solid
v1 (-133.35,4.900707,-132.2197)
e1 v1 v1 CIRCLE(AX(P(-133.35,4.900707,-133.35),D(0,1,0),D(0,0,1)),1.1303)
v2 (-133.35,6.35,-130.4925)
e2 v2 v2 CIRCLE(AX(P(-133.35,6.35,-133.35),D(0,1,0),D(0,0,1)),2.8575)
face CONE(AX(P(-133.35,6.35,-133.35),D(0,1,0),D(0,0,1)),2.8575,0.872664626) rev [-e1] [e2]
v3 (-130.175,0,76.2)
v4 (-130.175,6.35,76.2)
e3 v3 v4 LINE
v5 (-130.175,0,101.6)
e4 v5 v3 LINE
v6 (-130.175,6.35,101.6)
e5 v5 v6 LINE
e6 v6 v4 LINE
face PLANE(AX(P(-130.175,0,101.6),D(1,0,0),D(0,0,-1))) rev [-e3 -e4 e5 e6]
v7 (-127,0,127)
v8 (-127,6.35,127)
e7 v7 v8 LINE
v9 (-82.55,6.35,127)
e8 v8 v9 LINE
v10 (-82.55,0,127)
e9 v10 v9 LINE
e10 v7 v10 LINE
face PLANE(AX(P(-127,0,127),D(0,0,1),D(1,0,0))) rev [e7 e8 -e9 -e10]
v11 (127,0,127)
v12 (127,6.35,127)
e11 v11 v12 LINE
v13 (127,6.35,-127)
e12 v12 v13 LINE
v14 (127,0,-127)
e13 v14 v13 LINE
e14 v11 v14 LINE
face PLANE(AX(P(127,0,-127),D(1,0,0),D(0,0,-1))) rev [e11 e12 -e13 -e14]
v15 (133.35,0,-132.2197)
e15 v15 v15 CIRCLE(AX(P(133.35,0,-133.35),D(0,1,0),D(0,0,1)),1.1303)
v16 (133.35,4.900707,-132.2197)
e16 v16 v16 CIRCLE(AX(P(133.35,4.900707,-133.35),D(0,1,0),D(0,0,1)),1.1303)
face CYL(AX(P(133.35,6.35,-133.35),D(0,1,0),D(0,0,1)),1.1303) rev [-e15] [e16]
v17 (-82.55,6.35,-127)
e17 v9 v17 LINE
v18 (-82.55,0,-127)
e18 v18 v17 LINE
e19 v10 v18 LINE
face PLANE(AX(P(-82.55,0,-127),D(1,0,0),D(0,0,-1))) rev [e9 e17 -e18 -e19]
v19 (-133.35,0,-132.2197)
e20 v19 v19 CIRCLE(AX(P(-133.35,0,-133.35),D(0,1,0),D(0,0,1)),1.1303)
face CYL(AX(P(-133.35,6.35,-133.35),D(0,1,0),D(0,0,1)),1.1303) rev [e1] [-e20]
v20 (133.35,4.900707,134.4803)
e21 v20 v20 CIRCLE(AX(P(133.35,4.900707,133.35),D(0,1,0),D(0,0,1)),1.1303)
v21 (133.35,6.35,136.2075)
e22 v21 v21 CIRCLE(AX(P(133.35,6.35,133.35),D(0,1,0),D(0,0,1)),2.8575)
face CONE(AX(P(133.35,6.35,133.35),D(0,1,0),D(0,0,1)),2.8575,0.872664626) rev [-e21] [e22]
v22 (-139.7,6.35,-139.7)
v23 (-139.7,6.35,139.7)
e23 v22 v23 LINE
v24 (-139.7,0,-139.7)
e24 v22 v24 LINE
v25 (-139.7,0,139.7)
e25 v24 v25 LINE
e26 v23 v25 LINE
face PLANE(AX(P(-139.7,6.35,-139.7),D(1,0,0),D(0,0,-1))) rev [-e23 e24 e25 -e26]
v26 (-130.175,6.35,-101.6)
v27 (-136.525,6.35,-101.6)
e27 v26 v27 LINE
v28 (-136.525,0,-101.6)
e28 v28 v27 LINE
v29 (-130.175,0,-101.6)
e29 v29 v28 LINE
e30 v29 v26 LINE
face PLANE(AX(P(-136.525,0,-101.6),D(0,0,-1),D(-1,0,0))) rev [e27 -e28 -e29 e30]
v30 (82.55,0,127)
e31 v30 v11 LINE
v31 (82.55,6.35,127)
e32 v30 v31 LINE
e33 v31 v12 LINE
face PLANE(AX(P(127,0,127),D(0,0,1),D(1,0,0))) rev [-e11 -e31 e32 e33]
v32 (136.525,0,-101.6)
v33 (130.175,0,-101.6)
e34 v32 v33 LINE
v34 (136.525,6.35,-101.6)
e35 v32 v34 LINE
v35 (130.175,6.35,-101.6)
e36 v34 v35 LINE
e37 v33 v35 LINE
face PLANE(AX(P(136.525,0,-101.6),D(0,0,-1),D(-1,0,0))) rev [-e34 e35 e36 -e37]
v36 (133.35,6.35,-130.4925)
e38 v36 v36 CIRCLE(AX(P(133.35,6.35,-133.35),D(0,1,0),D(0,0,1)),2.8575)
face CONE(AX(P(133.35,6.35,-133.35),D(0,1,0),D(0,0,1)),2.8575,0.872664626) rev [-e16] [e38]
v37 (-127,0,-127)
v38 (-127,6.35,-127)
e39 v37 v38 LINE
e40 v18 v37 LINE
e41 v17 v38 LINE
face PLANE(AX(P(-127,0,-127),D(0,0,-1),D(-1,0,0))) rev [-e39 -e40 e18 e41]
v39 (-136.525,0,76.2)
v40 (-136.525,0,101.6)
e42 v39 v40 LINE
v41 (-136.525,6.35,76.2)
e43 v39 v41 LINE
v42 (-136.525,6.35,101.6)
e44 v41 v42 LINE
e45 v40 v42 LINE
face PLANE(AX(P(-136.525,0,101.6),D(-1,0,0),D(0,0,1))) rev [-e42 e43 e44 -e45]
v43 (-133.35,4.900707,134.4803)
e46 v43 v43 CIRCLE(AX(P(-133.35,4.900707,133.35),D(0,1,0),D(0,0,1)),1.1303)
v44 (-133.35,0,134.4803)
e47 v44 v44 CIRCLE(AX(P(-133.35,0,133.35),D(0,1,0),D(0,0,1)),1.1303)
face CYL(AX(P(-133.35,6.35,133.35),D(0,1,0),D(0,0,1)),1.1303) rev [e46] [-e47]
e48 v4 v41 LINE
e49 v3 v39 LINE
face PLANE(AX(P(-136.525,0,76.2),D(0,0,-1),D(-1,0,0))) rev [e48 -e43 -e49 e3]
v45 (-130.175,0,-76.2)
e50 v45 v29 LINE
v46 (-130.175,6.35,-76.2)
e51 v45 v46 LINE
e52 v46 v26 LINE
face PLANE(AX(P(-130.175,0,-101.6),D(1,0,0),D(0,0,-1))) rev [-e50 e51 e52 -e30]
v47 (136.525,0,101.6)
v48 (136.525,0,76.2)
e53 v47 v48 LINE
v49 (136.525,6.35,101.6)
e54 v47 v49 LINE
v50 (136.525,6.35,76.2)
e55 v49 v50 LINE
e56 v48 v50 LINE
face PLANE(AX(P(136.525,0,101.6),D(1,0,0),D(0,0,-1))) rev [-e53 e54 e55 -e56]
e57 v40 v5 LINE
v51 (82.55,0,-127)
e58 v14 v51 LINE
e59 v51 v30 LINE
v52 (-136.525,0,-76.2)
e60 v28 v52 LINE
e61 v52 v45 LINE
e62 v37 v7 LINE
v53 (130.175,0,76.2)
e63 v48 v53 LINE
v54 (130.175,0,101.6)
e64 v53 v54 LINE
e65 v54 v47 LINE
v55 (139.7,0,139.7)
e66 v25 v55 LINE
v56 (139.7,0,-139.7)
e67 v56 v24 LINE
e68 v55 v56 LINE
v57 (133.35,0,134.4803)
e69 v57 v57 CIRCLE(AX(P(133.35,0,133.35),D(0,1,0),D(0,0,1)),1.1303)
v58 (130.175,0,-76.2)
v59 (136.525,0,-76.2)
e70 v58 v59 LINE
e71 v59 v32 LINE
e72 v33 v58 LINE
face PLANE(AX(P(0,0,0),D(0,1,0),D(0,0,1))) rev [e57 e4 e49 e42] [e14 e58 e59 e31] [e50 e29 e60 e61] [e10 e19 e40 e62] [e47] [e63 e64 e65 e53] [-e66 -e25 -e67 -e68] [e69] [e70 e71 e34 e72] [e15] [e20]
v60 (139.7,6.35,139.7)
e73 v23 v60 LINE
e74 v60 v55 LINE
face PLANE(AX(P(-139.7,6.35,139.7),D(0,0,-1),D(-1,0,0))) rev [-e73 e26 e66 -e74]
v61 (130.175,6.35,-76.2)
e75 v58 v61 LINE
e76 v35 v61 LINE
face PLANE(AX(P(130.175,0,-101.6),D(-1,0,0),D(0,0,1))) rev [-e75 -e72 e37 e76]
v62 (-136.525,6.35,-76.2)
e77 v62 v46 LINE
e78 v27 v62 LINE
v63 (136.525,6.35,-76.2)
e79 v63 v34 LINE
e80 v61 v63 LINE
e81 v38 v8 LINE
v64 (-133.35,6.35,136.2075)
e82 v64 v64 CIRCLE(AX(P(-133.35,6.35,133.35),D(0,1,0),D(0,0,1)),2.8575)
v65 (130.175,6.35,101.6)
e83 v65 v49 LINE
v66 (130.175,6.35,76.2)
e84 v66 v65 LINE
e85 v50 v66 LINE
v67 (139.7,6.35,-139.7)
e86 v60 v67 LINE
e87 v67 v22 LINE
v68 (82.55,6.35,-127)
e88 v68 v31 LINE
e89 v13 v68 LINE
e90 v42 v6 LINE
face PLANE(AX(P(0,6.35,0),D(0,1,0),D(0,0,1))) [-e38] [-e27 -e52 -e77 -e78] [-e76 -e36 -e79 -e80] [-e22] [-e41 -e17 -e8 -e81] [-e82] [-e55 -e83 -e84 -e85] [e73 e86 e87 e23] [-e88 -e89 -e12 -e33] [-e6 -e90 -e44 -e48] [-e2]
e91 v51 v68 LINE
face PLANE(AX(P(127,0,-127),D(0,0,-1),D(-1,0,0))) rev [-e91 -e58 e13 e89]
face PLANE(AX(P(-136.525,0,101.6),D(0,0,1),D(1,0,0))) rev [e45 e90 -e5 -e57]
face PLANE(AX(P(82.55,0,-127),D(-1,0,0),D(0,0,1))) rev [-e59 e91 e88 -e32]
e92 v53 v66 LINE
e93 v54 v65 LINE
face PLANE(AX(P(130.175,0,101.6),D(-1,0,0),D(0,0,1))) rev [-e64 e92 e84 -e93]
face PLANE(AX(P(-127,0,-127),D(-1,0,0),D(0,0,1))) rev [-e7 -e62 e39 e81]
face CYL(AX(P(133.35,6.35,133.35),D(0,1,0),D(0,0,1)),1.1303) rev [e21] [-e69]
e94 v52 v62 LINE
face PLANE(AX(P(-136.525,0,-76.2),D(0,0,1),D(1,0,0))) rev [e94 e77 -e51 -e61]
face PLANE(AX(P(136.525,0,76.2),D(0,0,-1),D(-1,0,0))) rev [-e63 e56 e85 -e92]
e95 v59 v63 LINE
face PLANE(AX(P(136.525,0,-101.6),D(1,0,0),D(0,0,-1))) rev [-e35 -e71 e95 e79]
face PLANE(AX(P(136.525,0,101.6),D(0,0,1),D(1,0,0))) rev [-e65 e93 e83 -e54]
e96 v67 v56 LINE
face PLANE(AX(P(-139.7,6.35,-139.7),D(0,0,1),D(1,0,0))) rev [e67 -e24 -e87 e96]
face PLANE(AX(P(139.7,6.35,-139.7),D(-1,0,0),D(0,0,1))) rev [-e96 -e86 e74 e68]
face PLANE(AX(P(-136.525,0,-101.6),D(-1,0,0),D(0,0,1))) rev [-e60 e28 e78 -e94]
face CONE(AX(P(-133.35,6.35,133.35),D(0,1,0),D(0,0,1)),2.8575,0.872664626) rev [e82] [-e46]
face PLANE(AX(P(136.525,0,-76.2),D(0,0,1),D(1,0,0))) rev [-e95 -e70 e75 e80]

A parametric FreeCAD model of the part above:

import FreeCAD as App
import Part
import Sketcher
Q = App.Units.Quantity


def add_polygon(sketch, points):
    """Adds a closed chain of lines whose ends are joined by coincident constraints."""
    first, n = sketch.GeometryCount, len(points)
    for a, b in zip(points, points[1:] + points[:1]):
        sketch.addGeometry(Part.LineSegment(App.Vector(*a, 0), App.Vector(*b, 0)), False)
    for i in range(n):
        sketch.addConstraint(Sketcher.Constraint("Coincident", first + i, 2, first + (i + 1) % n, 1))

doc = App.newDocument("Part")
body = doc.addObject("PartDesign::Body", "Body")

# Sketch on XZ plane
sketch1 = body.newObject("Sketcher::SketchObject", "Sketch")
sketch1.AttachmentSupport = (doc.getObject("XZ_Plane"), [""])
sketch1.MapMode = "FlatFace"
add_polygon(sketch1, [(-140, -140), (-140, 140), (140, 140), (140, -140)])  # lines 0-3
sketch1.addConstraint([
    Sketcher.Constraint("Vertical", 0),
    Sketcher.Constraint("Horizontal", 1),
    Sketcher.Constraint("Vertical", 2),
    Sketcher.Constraint("Horizontal", 3),
    Sketcher.Constraint("Symmetric", 0, 2, 2, 2, -1, 1),
    Sketcher.Constraint("Equal", 3, 0),
    Sketcher.Constraint("DistanceX", 1, 1, 1, 2, Q("11 in")),
])
pad1 = body.newObject("PartDesign::Pad", "Pad")
pad1.Profile = sketch1
pad1.Length = Q("0.25 in")
pad1.Reversed = True

# Sketch on XZ plane
sketch2 = body.newObject("Sketcher::SketchObject", "Sketch001")
sketch2.AttachmentSupport = (doc.getObject("XZ_Plane"), [""])
sketch2.MapMode = "FlatFace"
sketch2.AttachmentOffset = App.Placement(App.Vector(0, 0, -0.25 * 25.4), App.Rotation())
add_polygon(sketch2, [(-127, -127), (-127, 127), (-83, 127), (-83, -127)])  # lines 0-3
add_polygon(sketch2, [(83, -127), (83, 127), (127, 127), (127, -127)])  # lines 4-7
add_polygon(sketch2, [(130, -102), (130, -76), (137, -76), (137, -102)])  # lines 8-11
add_polygon(sketch2, [(-137, -102), (-137, -76), (-130, -76), (-130, -102)])  # lines 12-15
add_polygon(sketch2, [(130, 76), (130, 102), (137, 102), (137, 76)])  # lines 16-19
add_polygon(sketch2, [(-137, 76), (-137, 102), (-130, 102), (-130, 76)])  # lines 20-23
sketch2.addConstraint([
    Sketcher.Constraint("Vertical", 0),
    Sketcher.Constraint("Horizontal", 1),
    Sketcher.Constraint("Vertical", 2),
    Sketcher.Constraint("Horizontal", 3),
    Sketcher.Constraint("Vertical", 4),
    Sketcher.Constraint("Horizontal", 5),
    Sketcher.Constraint("Vertical", 6),
    Sketcher.Constraint("Horizontal", 7),
    Sketcher.Constraint("Vertical", 8),
    Sketcher.Constraint("Horizontal", 9),
    Sketcher.Constraint("Vertical", 10),
    Sketcher.Constraint("Horizontal", 11),
    Sketcher.Constraint("Vertical", 12),
    Sketcher.Constraint("Horizontal", 13),
    Sketcher.Constraint("Vertical", 14),
    Sketcher.Constraint("Horizontal", 15),
    Sketcher.Constraint("Vertical", 16),
    Sketcher.Constraint("Horizontal", 17),
    Sketcher.Constraint("Vertical", 18),
    Sketcher.Constraint("Horizontal", 19),
    Sketcher.Constraint("Vertical", 20),
    Sketcher.Constraint("Horizontal", 21),
    Sketcher.Constraint("Vertical", 22),
    Sketcher.Constraint("Horizontal", 23),
    Sketcher.Constraint("Symmetric", 2, 2, 4, 2, -1, 1),
    Sketcher.Constraint("Symmetric", 0, 2, 6, 2, -1, 1),
    Sketcher.Constraint("Symmetric", 14, 2, 16, 2, -1, 1),
    Sketcher.Constraint("Symmetric", 12, 2, 18, 2, -1, 1),
    Sketcher.Constraint("Symmetric", 10, 2, 20, 2, -1, 1),
    Sketcher.Constraint("Symmetric", 8, 2, 22, 2, -1, 1),
    Sketcher.Constraint("Symmetric", 9, 2, 12, 2, -2),
    Sketcher.Constraint("Symmetric", 11, 2, 14, 2, -2),
    Sketcher.Constraint("Horizontal", 1, 2, 4, 2),
    Sketcher.Constraint("DistanceY", 0, 1, 0, 2, Q("10 in")),
    Sketcher.Constraint("DistanceY", 8, 1, 8, 2, Q("1 in")),
    Sketcher.Constraint("DistanceX", 0, 2, -1, 1, Q("5 in")),
    Sketcher.Constraint("DistanceY", 8, 2, -1, 1, Q("3 in")),
    Sketcher.Constraint("DistanceX", 1, 1, 1, 2, Q("1.75 in")),
    Sketcher.Constraint("DistanceX", 9, 1, 9, 2, Q("0.25 in")),
    Sketcher.Constraint("DistanceX", -1, 1, 8, 2, Q("5.125 in")),
])
pocket1 = body.newObject("PartDesign::Pocket", "Pocket")
pocket1.Profile = sketch2
pocket1.Type = "ThroughAll"
pocket1.Reversed = True

# Sketch on XZ plane
sketch3 = body.newObject("Sketcher::SketchObject", "Sketch002")
sketch3.AttachmentSupport = (doc.getObject("XZ_Plane"), [""])
sketch3.MapMode = "FlatFace"
sketch3.AttachmentOffset = App.Placement(App.Vector(0, 0, -0.25 * 25.4), App.Rotation())
sketch3.addGeometry([
    Part.Circle(App.Vector(-133.3, -133.3, 0), App.Vector(0, 0, 1), 1.1),
    Part.Circle(App.Vector(-133.3, 133.3, 0), App.Vector(0, 0, 1), 1.1),
    Part.Circle(App.Vector(133.3, 133.3, 0), App.Vector(0, 0, 1), 1.1),
    Part.Circle(App.Vector(133.3, -133.3, 0), App.Vector(0, 0, 1), 1.1),
], False)
sketch3.addConstraint([
    Sketcher.Constraint("Equal", 0, 1),
    Sketcher.Constraint("Equal", 1, 2),
    Sketcher.Constraint("Equal", 2, 3),
    Sketcher.Constraint("Symmetric", 0, 3, 2, 3, -1, 1),
    Sketcher.Constraint("Symmetric", 1, 3, 3, 3, -1, 1),
    Sketcher.Constraint("Symmetric", 1, 3, 2, 3, -2),
    Sketcher.Constraint("Diameter", 0, Q("0.089 in")),
    Sketcher.Constraint("DistanceY", 0, 3, 1, 3, Q("10.5 in")),
    Sketcher.Constraint("DistanceX", 1, 3, 2, 3, Q("10.5 in")),
])
doc.recompute()
hole = body.newObject("PartDesign::Hole", "Hole")
hole.Profile = sketch3
hole.ThreadType = "None"
hole.Diameter = Q("0.089 in")
hole.DepthType = "ThroughAll"
hole.HoleCutType = "Countersink"
hole.HoleCutDiameter = Q("0.225 in")
hole.HoleCutCountersinkAngle = 100
hole.Reversed = True

doc.recompute()
